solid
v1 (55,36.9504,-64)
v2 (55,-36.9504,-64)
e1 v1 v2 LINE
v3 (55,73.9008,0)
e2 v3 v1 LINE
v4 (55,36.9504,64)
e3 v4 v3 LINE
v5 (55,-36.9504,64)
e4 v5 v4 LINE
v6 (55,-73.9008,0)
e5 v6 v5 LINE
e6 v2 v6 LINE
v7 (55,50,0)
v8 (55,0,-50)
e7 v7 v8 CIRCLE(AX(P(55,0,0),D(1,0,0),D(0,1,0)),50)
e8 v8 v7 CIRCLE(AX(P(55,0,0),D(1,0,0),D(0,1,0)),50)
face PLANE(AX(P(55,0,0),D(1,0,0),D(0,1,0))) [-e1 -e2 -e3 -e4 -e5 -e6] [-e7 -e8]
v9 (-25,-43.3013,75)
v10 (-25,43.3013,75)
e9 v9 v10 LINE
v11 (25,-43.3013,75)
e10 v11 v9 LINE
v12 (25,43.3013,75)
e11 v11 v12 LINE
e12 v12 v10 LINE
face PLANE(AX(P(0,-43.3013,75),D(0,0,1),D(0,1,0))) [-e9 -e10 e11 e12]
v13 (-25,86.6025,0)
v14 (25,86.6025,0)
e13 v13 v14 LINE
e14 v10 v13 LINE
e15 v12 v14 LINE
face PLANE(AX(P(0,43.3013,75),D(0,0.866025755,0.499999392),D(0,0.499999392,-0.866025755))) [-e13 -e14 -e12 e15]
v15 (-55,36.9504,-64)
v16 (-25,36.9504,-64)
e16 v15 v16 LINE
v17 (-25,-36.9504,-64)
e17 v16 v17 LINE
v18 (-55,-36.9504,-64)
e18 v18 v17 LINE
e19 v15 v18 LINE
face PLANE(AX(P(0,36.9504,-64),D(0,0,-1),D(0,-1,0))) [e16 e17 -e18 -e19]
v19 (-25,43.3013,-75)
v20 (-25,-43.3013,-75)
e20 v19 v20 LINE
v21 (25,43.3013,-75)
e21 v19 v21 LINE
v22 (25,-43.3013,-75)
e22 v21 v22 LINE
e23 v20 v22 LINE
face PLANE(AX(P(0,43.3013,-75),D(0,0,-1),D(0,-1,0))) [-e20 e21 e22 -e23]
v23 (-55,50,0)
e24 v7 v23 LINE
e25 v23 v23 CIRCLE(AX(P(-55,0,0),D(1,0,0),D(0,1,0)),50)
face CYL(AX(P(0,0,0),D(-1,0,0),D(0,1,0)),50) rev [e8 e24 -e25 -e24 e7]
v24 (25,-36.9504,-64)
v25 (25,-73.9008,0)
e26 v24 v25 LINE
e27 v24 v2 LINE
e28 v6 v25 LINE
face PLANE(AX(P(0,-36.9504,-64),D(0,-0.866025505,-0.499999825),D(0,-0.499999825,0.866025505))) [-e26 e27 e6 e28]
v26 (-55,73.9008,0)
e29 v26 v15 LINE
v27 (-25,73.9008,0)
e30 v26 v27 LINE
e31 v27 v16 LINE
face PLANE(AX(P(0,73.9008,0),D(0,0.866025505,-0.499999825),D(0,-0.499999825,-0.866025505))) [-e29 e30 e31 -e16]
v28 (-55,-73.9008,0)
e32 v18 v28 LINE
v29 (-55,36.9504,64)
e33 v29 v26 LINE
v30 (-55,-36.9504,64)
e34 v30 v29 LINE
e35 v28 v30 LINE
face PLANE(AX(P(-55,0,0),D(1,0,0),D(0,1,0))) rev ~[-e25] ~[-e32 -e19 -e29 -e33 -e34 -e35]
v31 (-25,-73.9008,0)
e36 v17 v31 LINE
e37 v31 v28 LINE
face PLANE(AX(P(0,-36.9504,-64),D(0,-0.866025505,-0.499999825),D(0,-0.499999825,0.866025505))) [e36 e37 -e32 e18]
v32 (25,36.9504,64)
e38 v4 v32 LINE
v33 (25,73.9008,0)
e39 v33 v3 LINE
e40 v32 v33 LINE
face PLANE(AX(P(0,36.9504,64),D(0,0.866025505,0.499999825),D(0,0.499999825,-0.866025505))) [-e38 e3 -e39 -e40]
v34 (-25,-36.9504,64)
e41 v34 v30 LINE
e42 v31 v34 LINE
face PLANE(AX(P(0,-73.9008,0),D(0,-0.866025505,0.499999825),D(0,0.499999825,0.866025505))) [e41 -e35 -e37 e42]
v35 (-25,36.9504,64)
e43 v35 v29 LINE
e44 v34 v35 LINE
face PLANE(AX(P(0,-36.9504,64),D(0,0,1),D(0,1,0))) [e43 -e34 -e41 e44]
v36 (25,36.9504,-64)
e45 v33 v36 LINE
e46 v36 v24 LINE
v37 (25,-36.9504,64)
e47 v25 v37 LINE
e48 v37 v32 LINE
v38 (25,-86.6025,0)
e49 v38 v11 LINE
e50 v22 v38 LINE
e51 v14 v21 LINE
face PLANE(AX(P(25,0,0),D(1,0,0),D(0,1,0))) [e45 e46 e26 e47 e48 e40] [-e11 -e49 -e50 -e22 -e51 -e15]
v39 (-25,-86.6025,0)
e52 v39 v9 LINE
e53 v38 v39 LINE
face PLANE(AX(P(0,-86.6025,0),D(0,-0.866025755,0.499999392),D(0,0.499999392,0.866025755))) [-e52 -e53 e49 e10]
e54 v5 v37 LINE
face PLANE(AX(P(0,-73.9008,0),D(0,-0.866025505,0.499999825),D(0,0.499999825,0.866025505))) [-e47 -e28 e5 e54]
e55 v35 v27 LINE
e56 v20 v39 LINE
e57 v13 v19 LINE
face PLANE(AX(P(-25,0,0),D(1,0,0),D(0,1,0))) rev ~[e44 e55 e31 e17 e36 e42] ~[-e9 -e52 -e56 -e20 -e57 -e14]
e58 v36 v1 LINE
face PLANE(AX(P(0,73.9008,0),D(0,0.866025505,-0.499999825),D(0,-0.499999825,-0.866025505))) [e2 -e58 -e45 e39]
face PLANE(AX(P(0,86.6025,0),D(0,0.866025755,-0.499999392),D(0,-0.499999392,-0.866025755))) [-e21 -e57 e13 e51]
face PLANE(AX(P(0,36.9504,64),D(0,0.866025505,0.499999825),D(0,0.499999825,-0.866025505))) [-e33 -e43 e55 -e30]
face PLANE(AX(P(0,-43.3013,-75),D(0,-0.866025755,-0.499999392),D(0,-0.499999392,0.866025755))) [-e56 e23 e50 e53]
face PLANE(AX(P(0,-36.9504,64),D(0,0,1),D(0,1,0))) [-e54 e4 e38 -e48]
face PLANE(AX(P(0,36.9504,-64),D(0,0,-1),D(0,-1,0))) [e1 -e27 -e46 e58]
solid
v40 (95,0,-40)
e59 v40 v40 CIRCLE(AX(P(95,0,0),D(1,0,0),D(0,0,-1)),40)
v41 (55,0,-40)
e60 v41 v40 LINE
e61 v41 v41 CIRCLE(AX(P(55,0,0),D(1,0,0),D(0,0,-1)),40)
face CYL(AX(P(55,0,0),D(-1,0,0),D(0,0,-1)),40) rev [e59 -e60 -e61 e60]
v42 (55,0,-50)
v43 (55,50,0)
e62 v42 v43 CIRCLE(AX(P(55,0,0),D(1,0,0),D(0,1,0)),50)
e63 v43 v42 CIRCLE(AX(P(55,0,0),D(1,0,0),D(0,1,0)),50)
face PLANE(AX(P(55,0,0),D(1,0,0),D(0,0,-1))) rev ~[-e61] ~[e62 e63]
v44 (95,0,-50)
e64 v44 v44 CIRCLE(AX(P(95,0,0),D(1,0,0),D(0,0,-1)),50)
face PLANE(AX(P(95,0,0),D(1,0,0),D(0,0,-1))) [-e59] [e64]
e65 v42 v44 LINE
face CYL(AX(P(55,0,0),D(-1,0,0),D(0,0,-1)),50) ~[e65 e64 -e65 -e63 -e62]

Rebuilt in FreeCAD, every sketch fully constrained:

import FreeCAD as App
import Part
import Sketcher

V = App.Vector
Q = App.Units.Quantity


def add_polygon(sketch, points):
    """Adds a closed chain of lines whose ends are joined by coincident constraints."""
    first, n = sketch.GeometryCount, len(points)
    for a, b in zip(points, points[1:] + points[:1]):
        sketch.addGeometry(Part.LineSegment(App.Vector(*a, 0), App.Vector(*b, 0)), False)
    for i in range(n):
        sketch.addConstraint(Sketcher.Constraint("Coincident", first + i, 2, first + (i + 1) % n, 1))

doc = App.newDocument("Part")
body = doc.addObject("PartDesign::Body", "Body")
body.AllowCompound = True

sketch1 = doc.addObject("Sketcher::SketchObject", "Sketch")
body.addObject(sketch1)
sketch1.AttachmentSupport = (doc.YZ_Plane, [""])
sketch1.MapMode = "FlatFace"
add_polygon(sketch1, [(-73.9008, 0), (-36.9504, -64), (36.9504, -64), (73.9008, 0), (36.9504, 64), (-36.9504, 64)])
sketch1.addGeometry(Part.Circle(V(0, 0, 0), V(0, 0, 1), 50), False)
sketch1.addConstraint([
    Sketcher.Constraint("Horizontal", 1),
    Sketcher.Constraint("Horizontal", 4),
    Sketcher.Constraint("Coincident", 6, 3, -1, 1),
    Sketcher.Constraint("Symmetric", 0, 2, 3, 2, -1, 1),
    Sketcher.Constraint("Symmetric", 2, 2, 5, 2, -1, 1),
    Sketcher.Constraint("PointOnObject", 2, 2, -1),
    Sketcher.Constraint("Parallel", 2, 5),
    Sketcher.Constraint("Vertical", 1, 2, 3, 2),
    Sketcher.Constraint("Diameter", 6, Q("100 mm")),
    Sketcher.Constraint("DistanceY", 0, 2, -1, 1, Q("64 mm")),
    Sketcher.Constraint("Angle", 0, Q("-60 deg")),
    Sketcher.Constraint("DistanceX", 1, 1, 1, 2, Q("73.9008 mm")),
])
pad1 = doc.addObject("PartDesign::Pad", "Pad")
body.addObject(pad1)
pad1.Profile = sketch1
pad1.Length = 110
pad1.Midplane = True

sketch2 = doc.addObject("Sketcher::SketchObject", "Sketch001")
body.addObject(sketch2)
sketch2.AttachmentSupport = (doc.YZ_Plane, [""])
sketch2.MapMode = "FlatFace"
add_polygon(sketch2, [(-86.6025, 0), (-43.3013, -75), (43.3013, -75), (86.6025, 0), (43.3013, 75), (-43.3013, 75)])
sketch2.addGeometry(Part.Circle(V(0, 0, 0), V(0, 0, 1), 50), False)
sketch2.addConstraint([
    Sketcher.Constraint("Horizontal", 1),
    Sketcher.Constraint("Horizontal", 4),
    Sketcher.Constraint("Coincident", 6, 3, -1, 1),
    Sketcher.Constraint("Symmetric", 0, 2, 3, 2, -1, 1),
    Sketcher.Constraint("Symmetric", 2, 2, 5, 2, -1, 1),
    Sketcher.Constraint("PointOnObject", 2, 2, -1),
    Sketcher.Constraint("Parallel", 2, 5),
    Sketcher.Constraint("Vertical", 1, 2, 3, 2),
    Sketcher.Constraint("Diameter", 6, Q("100 mm")),
    Sketcher.Constraint("DistanceY", 0, 2, -1, 1, Q("75 mm")),
    Sketcher.Constraint("Angle", 0, Q("-60 deg")),
    Sketcher.Constraint("DistanceX", 1, 1, 1, 2, Q("86.6026 mm")),
])
pad2 = doc.addObject("PartDesign::Pad", "Pad001")
body.addObject(pad2)
pad2.Profile = sketch2
pad2.Length = 50
pad2.Midplane = True

sketch3 = doc.addObject("Sketcher::SketchObject", "Sketch002")
body.addObject(sketch3)
sketch3.AttachmentSupport = (doc.YZ_Plane, [""])
sketch3.MapMode = "FlatFace"
sketch3.AttachmentOffset = App.Placement(V(0, 0, 55), App.Rotation())
sketch3.addGeometry([
    Part.Circle(V(0, 0, 0), V(0, 0, 1), 50),
    Part.Circle(V(0, 0, 0), V(0, 0, 1), 40),
], False)
sketch3.addConstraint([
    Sketcher.Constraint("Coincident", 0, 3, -1, 1),
    Sketcher.Constraint("Coincident", 1, 3, -1, 1),
    Sketcher.Constraint("Diameter", 0, Q("100 mm")),
    Sketcher.Constraint("Diameter", 1, Q("80 mm")),
])
pad3 = doc.addObject("PartDesign::Pad", "Pad002")
body.addObject(pad3)
pad3.Profile = sketch3
pad3.Length = 40

doc.recompute()
